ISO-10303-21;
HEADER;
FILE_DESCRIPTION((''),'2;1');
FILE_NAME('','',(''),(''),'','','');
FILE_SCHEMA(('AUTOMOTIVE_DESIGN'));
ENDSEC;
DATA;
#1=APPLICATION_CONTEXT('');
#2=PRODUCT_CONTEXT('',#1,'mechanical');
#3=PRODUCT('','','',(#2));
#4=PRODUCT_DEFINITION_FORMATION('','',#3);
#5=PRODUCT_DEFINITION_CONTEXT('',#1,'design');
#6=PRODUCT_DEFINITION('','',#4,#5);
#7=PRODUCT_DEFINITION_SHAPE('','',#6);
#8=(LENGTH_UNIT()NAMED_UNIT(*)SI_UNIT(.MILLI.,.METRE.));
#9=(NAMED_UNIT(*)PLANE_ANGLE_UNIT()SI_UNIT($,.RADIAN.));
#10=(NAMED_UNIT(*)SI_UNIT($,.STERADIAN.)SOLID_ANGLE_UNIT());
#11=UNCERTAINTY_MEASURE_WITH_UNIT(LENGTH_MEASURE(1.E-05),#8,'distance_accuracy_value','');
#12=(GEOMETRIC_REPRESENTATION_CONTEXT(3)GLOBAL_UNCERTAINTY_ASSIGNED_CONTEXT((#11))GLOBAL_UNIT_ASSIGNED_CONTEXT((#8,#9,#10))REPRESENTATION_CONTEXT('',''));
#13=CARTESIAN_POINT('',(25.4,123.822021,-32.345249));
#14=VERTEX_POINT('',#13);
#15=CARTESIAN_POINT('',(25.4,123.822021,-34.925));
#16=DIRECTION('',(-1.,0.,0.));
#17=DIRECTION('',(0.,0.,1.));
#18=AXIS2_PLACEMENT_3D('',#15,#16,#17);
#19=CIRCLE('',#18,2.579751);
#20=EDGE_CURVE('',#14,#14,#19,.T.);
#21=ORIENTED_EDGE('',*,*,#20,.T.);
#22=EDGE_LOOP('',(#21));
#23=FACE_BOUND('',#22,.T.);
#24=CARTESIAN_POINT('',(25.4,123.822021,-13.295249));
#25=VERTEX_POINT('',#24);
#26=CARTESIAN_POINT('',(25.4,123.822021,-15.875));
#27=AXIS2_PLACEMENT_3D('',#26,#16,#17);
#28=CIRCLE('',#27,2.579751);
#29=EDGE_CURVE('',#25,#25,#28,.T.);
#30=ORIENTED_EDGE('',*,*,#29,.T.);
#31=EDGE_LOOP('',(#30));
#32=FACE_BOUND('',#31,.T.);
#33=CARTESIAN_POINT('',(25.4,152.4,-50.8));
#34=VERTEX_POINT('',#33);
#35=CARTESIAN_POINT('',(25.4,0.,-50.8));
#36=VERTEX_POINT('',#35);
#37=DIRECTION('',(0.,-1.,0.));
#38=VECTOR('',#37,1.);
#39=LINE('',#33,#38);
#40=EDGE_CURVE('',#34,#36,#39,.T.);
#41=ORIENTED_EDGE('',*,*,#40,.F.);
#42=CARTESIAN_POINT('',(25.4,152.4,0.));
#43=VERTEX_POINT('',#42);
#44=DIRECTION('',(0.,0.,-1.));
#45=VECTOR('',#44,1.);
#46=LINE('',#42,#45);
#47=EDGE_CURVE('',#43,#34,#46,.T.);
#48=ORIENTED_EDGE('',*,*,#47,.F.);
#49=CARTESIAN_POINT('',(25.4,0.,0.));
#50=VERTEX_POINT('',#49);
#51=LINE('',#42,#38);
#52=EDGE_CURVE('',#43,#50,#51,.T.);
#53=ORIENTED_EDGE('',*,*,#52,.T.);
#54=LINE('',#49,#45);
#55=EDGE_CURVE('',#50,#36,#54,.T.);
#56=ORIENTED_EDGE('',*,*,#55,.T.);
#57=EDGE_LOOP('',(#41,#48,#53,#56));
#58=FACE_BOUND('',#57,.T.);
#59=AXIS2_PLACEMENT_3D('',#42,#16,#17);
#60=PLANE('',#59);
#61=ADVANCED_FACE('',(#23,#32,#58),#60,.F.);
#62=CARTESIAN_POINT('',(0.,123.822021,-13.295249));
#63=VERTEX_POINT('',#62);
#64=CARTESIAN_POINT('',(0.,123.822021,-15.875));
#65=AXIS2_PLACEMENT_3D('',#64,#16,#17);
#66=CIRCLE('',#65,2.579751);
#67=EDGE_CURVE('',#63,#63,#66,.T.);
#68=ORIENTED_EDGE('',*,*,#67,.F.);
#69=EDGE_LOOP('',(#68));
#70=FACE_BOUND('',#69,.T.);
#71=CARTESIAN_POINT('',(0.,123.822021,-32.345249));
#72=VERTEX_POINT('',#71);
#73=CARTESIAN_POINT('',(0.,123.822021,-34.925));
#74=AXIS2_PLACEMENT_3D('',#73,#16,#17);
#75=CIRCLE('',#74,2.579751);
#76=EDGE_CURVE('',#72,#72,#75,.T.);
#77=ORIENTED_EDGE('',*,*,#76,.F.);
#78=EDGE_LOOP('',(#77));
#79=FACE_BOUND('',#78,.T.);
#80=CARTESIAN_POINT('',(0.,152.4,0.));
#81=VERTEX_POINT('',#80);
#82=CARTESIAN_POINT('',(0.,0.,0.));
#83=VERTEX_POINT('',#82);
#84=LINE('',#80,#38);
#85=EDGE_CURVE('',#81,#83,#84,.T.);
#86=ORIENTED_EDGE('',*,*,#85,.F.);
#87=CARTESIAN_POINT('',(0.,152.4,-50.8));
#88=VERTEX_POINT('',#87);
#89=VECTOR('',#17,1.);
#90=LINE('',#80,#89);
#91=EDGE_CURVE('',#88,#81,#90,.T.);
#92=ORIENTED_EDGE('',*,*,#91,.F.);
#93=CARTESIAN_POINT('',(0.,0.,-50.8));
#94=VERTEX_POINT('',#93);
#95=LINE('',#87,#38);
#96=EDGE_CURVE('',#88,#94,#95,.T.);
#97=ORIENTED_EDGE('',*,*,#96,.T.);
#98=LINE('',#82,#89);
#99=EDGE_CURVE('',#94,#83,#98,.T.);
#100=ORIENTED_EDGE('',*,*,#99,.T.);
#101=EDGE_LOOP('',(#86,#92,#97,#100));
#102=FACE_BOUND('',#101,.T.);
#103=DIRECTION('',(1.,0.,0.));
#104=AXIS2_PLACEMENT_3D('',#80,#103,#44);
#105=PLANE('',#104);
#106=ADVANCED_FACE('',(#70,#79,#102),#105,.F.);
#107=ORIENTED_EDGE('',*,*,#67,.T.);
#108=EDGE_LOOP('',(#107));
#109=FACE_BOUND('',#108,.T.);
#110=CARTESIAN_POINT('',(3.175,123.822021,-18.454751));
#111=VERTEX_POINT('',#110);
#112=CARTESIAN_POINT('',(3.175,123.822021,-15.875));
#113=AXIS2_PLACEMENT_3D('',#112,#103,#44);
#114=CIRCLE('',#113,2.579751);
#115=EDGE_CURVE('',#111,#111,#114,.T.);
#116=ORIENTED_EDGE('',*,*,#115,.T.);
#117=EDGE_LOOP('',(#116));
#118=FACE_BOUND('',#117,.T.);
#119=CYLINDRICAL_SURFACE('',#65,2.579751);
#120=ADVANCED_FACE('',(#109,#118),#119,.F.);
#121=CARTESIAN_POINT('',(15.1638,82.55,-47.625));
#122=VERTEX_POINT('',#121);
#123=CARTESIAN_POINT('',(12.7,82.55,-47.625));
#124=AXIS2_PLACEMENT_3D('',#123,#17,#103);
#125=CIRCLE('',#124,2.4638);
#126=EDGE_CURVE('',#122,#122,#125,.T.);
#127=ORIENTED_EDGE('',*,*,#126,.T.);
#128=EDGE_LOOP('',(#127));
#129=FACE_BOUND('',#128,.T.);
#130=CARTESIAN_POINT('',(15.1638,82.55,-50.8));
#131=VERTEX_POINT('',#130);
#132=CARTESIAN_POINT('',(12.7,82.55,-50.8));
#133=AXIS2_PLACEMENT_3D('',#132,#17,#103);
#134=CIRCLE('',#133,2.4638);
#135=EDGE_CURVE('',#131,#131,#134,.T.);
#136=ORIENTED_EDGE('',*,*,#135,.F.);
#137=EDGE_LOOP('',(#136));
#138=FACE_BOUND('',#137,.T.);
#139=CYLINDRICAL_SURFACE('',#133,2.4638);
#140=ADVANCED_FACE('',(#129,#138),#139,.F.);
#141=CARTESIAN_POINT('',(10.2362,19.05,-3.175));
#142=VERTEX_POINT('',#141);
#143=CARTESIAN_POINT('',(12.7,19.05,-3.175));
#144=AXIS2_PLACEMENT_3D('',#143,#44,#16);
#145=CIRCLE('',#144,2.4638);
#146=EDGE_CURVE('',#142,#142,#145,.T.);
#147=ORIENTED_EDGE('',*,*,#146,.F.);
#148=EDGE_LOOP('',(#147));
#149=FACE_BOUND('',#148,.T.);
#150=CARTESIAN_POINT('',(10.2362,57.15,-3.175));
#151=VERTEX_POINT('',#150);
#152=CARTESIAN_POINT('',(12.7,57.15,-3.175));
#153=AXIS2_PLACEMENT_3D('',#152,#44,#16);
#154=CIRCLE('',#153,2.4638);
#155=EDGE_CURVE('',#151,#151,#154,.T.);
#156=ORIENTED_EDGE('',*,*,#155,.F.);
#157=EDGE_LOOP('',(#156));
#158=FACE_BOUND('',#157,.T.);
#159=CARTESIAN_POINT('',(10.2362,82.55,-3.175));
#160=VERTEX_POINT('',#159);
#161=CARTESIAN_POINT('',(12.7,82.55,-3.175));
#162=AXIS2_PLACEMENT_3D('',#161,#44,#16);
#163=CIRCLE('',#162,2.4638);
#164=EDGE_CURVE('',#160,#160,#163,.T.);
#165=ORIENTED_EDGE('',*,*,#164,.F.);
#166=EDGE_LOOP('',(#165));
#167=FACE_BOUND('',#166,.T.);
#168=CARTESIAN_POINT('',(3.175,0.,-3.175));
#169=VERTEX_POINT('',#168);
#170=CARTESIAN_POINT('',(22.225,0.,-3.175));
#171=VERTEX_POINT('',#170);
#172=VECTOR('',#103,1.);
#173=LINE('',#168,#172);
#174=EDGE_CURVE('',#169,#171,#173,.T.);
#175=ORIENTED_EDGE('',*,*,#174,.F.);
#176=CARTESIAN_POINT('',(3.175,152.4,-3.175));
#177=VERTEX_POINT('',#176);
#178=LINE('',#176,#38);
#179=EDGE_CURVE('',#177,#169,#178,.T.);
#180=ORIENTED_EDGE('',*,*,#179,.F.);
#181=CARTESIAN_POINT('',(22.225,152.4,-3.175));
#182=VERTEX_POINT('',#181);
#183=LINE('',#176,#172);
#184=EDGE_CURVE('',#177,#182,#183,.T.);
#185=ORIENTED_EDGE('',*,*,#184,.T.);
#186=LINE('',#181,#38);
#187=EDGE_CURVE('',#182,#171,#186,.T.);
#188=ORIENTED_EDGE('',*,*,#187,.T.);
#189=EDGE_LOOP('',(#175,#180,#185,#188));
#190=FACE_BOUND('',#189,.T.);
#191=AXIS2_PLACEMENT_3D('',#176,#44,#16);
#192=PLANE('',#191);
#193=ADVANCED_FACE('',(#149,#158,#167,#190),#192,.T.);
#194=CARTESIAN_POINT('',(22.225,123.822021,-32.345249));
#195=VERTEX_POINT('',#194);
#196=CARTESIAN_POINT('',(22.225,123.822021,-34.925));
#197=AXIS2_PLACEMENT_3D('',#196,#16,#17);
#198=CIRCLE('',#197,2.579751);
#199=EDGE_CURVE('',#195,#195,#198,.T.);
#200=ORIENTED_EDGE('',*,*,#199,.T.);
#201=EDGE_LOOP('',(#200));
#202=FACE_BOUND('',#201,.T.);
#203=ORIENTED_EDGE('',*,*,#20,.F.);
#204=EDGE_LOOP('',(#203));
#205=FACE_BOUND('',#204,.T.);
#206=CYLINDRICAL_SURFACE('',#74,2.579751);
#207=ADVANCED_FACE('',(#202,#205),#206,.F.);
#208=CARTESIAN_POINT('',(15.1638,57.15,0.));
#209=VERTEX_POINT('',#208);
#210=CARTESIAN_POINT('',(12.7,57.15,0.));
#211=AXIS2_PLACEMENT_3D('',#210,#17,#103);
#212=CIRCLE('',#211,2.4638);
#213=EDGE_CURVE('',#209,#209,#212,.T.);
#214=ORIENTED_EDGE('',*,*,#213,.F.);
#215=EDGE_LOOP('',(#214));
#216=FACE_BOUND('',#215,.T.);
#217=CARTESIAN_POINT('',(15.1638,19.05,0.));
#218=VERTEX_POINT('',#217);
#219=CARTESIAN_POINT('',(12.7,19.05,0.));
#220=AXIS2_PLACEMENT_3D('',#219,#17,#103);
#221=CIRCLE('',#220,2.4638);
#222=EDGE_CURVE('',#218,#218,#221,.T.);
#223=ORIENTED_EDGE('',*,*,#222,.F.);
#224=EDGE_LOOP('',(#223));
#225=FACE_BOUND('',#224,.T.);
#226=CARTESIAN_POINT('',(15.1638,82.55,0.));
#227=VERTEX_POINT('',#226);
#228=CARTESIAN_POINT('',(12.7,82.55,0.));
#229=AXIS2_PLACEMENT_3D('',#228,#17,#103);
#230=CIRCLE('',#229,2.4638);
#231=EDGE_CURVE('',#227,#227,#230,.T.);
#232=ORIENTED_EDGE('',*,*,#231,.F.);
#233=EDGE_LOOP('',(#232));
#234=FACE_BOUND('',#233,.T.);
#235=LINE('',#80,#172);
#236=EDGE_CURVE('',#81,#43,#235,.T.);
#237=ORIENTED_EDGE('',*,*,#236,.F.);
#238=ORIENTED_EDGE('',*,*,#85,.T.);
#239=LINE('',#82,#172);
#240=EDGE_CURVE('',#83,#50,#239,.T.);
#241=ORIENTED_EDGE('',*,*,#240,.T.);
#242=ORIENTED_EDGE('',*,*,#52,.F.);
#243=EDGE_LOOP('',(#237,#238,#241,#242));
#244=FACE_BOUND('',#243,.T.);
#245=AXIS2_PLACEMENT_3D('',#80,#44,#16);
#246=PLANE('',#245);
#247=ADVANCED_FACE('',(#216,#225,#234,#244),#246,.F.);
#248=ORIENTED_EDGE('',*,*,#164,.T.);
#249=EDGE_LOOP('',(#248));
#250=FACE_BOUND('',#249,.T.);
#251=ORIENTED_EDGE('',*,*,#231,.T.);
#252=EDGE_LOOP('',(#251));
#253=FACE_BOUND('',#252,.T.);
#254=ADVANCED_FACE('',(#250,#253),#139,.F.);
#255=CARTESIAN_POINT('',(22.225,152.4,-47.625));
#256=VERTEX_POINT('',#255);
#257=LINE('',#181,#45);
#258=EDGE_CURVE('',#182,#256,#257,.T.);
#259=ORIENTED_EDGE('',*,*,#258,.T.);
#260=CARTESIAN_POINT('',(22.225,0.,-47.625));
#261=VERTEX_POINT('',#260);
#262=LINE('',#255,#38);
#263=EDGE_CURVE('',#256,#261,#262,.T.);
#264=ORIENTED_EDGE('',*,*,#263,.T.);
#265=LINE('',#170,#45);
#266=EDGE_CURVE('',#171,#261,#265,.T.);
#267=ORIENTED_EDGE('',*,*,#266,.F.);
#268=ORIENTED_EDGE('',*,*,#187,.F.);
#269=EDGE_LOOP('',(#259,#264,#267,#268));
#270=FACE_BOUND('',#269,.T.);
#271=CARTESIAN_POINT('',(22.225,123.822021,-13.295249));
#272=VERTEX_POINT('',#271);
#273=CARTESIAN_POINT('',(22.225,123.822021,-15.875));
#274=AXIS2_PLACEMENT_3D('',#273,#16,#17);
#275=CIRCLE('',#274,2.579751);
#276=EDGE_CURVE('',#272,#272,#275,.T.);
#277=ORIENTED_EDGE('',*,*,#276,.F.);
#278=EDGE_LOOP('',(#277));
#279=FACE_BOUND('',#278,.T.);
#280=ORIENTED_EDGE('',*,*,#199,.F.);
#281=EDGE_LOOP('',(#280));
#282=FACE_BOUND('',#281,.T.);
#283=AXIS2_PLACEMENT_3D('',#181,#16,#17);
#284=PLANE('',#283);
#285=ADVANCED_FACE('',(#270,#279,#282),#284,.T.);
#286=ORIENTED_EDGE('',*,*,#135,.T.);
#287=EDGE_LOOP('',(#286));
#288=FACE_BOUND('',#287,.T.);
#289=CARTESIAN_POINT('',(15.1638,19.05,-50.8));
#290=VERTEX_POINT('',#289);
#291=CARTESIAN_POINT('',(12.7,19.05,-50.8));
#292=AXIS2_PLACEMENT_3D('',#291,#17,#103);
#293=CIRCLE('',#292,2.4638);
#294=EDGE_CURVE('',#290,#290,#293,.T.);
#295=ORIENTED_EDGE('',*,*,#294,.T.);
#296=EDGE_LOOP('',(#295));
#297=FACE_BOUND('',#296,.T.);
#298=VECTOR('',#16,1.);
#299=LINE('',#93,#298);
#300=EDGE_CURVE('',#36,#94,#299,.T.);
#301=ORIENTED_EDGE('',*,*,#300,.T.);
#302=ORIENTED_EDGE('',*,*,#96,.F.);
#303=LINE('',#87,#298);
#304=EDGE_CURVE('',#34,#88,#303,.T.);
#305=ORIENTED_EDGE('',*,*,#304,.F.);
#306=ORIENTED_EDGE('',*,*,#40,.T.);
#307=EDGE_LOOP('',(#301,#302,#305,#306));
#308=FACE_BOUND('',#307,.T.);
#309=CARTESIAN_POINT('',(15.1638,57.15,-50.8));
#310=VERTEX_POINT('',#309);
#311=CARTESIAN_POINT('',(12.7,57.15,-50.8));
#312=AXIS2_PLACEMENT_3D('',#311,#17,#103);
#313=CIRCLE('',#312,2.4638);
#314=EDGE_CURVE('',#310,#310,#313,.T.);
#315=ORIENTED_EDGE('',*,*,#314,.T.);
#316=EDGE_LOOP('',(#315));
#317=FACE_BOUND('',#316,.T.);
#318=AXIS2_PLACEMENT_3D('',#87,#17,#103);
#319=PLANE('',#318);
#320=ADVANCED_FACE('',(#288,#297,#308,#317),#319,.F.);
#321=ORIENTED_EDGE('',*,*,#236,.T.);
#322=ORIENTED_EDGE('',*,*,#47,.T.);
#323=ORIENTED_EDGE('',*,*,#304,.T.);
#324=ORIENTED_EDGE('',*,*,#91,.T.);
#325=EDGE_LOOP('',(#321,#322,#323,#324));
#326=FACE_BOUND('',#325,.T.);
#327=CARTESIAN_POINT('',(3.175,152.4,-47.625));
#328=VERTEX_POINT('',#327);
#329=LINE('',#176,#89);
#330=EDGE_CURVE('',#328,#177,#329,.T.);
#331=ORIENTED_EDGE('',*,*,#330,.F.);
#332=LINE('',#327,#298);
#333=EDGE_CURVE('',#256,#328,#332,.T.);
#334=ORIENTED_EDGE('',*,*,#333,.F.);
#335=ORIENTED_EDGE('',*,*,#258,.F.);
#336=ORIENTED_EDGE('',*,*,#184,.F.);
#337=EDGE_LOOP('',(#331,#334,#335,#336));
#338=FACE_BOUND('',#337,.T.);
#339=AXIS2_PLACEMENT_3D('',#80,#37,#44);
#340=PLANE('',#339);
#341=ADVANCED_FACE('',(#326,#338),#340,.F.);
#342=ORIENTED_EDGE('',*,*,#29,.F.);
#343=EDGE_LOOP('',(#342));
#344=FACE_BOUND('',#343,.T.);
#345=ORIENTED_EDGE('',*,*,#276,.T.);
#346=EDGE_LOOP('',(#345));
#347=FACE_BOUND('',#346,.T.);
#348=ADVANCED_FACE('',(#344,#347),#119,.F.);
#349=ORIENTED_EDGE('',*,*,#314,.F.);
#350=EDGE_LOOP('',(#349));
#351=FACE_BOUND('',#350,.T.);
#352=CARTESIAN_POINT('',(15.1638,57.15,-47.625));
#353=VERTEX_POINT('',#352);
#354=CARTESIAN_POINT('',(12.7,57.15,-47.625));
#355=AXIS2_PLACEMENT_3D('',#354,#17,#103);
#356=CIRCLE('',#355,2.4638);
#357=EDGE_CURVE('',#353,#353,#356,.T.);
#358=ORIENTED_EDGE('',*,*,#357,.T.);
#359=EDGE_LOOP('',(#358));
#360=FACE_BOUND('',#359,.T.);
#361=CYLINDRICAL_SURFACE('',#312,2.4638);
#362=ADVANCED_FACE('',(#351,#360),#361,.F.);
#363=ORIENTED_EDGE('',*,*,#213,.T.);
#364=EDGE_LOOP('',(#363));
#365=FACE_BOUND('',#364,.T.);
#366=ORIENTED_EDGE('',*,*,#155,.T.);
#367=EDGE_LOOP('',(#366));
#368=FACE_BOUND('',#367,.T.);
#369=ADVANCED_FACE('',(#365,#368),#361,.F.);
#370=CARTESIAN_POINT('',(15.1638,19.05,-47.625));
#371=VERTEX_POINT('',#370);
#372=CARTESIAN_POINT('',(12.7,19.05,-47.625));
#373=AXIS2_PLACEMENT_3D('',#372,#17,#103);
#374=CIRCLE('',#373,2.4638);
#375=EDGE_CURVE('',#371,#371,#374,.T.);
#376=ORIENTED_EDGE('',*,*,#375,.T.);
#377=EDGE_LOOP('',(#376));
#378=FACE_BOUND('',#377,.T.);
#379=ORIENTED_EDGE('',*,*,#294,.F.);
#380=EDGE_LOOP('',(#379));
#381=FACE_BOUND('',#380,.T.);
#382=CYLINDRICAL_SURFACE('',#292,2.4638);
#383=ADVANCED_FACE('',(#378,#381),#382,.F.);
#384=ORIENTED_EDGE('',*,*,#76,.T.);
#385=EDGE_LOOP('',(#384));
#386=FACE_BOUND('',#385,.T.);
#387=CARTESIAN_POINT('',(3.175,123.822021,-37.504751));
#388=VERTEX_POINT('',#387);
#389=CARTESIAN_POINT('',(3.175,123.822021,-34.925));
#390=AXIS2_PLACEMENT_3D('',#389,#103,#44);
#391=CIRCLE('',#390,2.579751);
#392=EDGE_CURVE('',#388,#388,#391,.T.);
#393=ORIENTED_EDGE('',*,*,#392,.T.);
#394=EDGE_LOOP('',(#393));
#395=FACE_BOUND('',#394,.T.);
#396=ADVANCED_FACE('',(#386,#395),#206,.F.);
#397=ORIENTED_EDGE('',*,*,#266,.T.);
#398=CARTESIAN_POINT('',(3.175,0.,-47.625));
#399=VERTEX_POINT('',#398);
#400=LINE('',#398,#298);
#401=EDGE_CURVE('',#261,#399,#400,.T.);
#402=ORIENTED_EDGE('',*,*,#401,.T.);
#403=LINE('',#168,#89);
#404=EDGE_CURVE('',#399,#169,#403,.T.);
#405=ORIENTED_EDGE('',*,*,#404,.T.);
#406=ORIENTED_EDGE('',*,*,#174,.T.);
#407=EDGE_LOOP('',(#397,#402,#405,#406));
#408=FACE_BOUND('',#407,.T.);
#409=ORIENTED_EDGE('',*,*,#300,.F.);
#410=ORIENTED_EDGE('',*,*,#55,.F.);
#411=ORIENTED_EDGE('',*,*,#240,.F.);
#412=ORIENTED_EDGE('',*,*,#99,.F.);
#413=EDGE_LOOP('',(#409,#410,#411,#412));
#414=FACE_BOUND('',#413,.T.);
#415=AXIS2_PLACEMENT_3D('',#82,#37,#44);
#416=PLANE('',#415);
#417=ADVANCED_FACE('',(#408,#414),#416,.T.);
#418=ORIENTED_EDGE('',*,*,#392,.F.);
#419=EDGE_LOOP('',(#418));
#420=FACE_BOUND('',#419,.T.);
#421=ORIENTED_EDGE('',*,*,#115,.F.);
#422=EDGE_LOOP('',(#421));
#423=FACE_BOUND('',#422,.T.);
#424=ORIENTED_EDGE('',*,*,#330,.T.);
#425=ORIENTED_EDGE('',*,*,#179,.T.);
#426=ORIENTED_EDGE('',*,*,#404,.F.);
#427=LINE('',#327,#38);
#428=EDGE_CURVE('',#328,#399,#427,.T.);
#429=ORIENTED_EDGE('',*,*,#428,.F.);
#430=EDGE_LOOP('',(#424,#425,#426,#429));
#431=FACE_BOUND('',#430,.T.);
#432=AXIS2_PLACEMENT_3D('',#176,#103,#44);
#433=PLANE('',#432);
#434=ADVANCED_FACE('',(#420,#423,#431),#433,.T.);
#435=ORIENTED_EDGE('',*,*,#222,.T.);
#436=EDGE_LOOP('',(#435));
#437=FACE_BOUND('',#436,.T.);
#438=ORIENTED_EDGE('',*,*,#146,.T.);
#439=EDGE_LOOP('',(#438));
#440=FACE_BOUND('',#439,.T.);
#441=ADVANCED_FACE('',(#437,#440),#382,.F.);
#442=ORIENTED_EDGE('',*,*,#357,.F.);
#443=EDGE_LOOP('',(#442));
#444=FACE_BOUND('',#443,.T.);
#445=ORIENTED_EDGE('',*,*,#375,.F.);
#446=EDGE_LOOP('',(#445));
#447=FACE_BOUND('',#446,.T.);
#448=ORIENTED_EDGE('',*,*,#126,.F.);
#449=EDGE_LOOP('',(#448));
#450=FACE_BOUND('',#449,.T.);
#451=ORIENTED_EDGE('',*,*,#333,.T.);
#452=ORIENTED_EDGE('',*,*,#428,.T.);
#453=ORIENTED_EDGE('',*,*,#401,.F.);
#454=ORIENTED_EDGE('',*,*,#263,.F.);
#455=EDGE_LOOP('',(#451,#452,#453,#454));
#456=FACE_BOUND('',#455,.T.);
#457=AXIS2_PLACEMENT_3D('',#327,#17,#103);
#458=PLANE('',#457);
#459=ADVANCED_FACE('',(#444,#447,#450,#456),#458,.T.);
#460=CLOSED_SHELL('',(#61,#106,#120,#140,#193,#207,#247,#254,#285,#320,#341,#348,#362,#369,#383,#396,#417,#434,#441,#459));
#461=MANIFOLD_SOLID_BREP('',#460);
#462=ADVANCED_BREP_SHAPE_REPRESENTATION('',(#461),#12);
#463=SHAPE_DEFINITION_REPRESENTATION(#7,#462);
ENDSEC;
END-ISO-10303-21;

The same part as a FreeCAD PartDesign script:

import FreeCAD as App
import Part
import Sketcher
from FreeCAD import Vector
Q = App.Units.Quantity

doc = App.newDocument("Part")
body = doc.addObject("PartDesign::Body", "Body")

# Sketch on XZ plane
sketch1 = body.newObject("Sketcher::SketchObject", "Sketch")
sketch1.AttachmentSupport = (doc.getObject("XZ_Plane"), [""])
sketch1.MapMode = "FlatFace"
sketch1.addGeometry([
    Part.LineSegment(Vector(0, -51, 0), Vector(0, 0, 0)),  # 0
    Part.LineSegment(Vector(0, 0, 0), Vector(25, 0, 0)),  # 1
    Part.LineSegment(Vector(25, 0, 0), Vector(25, -51, 0)),  # 2
    Part.LineSegment(Vector(25, -51, 0), Vector(0, -51, 0)),  # 3
    Part.LineSegment(Vector(22, -3, 0), Vector(3, -3, 0)),  # 4
    Part.LineSegment(Vector(3, -3, 0), Vector(3, -48, 0)),  # 5
    Part.LineSegment(Vector(3, -48, 0), Vector(22, -48, 0)),  # 6
    Part.LineSegment(Vector(22, -48, 0), Vector(22, -3, 0)),  # 7
], False)
sketch1.addConstraint([
    Sketcher.Constraint("Coincident", 0, 2, 1, 1),
    Sketcher.Constraint("Coincident", 1, 2, 2, 1),
    Sketcher.Constraint("Coincident", 2, 2, 3, 1),
    Sketcher.Constraint("Coincident", 3, 2, 0, 1),
    Sketcher.Constraint("Coincident", 4, 2, 5, 1),
    Sketcher.Constraint("Coincident", 5, 2, 6, 1),
    Sketcher.Constraint("Coincident", 6, 2, 7, 1),
    Sketcher.Constraint("Coincident", 7, 2, 4, 1),
    Sketcher.Constraint("Vertical", 0),
    Sketcher.Constraint("Horizontal", 1),
    Sketcher.Constraint("Vertical", 2),
    Sketcher.Constraint("Horizontal", 3),
    Sketcher.Constraint("Horizontal", 4),
    Sketcher.Constraint("Vertical", 5),
    Sketcher.Constraint("Horizontal", 6),
    Sketcher.Constraint("Vertical", 7),
    Sketcher.Constraint("Coincident", 0, 2, -1, 1),
    Sketcher.Constraint("DistanceX", 1, 1, 1, 2, Q("1 in")),
    Sketcher.Constraint("DistanceY", 0, 1, 0, 2, Q("2 in")),
    Sketcher.Constraint("DistanceX", 4, 2, 4, 1, Q("0.75 in")),
    Sketcher.Constraint("DistanceY", 5, 2, 5, 1, Q("1.75 in")),
    Sketcher.Constraint("DistanceX", -1, 1, 4, 2, Q("0.125 in")),
    Sketcher.Constraint("DistanceY", 4, 2, -1, 1, Q("0.125 in")),
])
pad1 = body.newObject("PartDesign::Pad", "Pad")
pad1.Profile = sketch1
pad1.Length = Q("6 in")
pad1.Reversed = True

# Sketch on XY plane
sketch2 = body.newObject("Sketcher::SketchObject", "Sketch001")
sketch2.AttachmentSupport = (doc.getObject("XY_Plane"), [""])
sketch2.MapMode = "FlatFace"
sketch2.addGeometry([
    Part.Circle(Vector(12.7, 82.5, 0), Vector(0, 0, 1), 2.5),
    Part.Circle(Vector(12.7, 57.1, 0), Vector(0, 0, 1), 2.5),
    Part.Circle(Vector(12.7, 19.1, 0), Vector(0, 0, 1), 2.5),
], False)
sketch2.addConstraint([
    Sketcher.Constraint("Equal", 0, 1),
    Sketcher.Constraint("Equal", 1, 2),
    Sketcher.Constraint("Vertical", 0, 3, 1, 3),
    Sketcher.Constraint("Vertical", 1, 3, 2, 3),
    Sketcher.Constraint("Diameter", 0, Q("0.194 in")),
    Sketcher.Constraint("DistanceY", 1, 3, 0, 3, Q("1 in")),
    Sketcher.Constraint("DistanceX", -1, 1, 0, 3, Q("0.5 in")),
    Sketcher.Constraint("DistanceY", 2, 3, 1, 3, Q("1.5 in")),
    Sketcher.Constraint("DistanceY", -1, 1, 0, 3, Q("3.25 in")),
])
pocket1 = body.newObject("PartDesign::Pocket", "Pocket")
pocket1.Profile = sketch2
pocket1.Type = "ThroughAll"

# Sketch on YZ plane
sketch3 = body.newObject("Sketcher::SketchObject", "Sketch002")
sketch3.AttachmentSupport = (doc.getObject("YZ_Plane"), [""])
sketch3.MapMode = "FlatFace"
sketch3.addGeometry([
    Part.Circle(Vector(123.8, -34.9, 0), Vector(0, 0, 1), 2.6),
    Part.Circle(Vector(123.8, -15.9, 0), Vector(0, 0, 1), 2.6),
], False)
sketch3.addConstraint([
    Sketcher.Constraint("Equal", 0, 1),
    Sketcher.Constraint("Vertical", 0, 3, 1, 3),
    Sketcher.Constraint("Diameter", 0, Q("5.159502 mm")),
    Sketcher.Constraint("DistanceY", 0, 3, 1, 3, Q("0.75 in")),
    Sketcher.Constraint("DistanceY", 0, 3, -1, 1, Q("1.375 in")),
    Sketcher.Constraint("DistanceX", -1, 1, 0, 3, Q("123.822021 mm")),
])
doc.recompute()
hole = body.newObject("PartDesign::Hole", "Hole")
hole.Profile = sketch3
hole.ThreadType = "None"
hole.Diameter = 5.159502
hole.DepthType = "ThroughAll"
hole.Reversed = True

doc.recompute()
